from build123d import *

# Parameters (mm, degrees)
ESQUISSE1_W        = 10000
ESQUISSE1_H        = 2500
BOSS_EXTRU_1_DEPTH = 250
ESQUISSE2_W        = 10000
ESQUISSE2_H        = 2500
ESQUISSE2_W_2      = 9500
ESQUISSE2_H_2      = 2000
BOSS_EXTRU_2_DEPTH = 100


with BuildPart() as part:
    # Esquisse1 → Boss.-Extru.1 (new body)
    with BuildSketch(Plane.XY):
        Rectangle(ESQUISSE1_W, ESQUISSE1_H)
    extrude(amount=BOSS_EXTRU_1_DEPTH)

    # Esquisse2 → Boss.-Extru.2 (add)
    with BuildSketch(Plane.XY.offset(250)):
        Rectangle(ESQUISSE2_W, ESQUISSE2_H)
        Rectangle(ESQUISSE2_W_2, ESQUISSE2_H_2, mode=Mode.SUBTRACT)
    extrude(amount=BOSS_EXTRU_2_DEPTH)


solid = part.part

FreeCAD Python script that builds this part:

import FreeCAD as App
import Part
import Sketcher
from FreeCAD import Vector

doc = App.newDocument("Part")
body = doc.addObject("PartDesign::Body", "Body")

# Sketch on XY plane
sketch1 = doc.addObject("Sketcher::SketchObject", "Sketch")
body.addObject(sketch1)
sketch1.AttachmentSupport = (doc.XY_Plane, [""])
sketch1.MapMode = "FlatFace"
sketch1.addGeometry([
    Part.LineSegment(Vector(-5000, 1250, 0), Vector(-5000, -1250, 0)),
    Part.LineSegment(Vector(-5000, -1250, 0), Vector(5000, -1250, 0)),
    Part.LineSegment(Vector(5000, -1250, 0), Vector(5000, 1250, 0)),
    Part.LineSegment(Vector(5000, 1250, 0), Vector(-5000, 1250, 0)),
], False)
sketch1.addConstraint([
    Sketcher.Constraint("Coincident", 0, 2, 1, 1),
    Sketcher.Constraint("Coincident", 1, 2, 2, 1),
    Sketcher.Constraint("Coincident", 2, 2, 3, 1),
    Sketcher.Constraint("Coincident", 3, 2, 0, 1),
    Sketcher.Constraint("Vertical", 0),
    Sketcher.Constraint("Horizontal", 1),
    Sketcher.Constraint("Vertical", 2),
    Sketcher.Constraint("Horizontal", 3),
    Sketcher.Constraint("Symmetric", 0, 2, 2, 2, -1, 1),
    Sketcher.Constraint("DistanceX", 1, 1, 1, 2, 10000.0),
    Sketcher.Constraint("DistanceY", 0, 2, 0, 1, 2500.0),
])
pad1 = doc.addObject("PartDesign::Pad", "Pad")
body.addObject(pad1)
pad1.Profile = sketch1
pad1.Length = 250

# Sketch on XY plane
sketch2 = doc.addObject("Sketcher::SketchObject", "Sketch001")
body.addObject(sketch2)
sketch2.AttachmentSupport = (doc.XY_Plane, [""])
sketch2.MapMode = "FlatFace"
sketch2.AttachmentOffset = App.Placement(Vector(0, 0, 250), App.Rotation())
sketch2.addGeometry([
    Part.LineSegment(Vector(-5000, 1250, 0), Vector(-5000, -1250, 0)),  # 0
    Part.LineSegment(Vector(-5000, -1250, 0), Vector(5000, -1250, 0)),  # 1
    Part.LineSegment(Vector(5000, -1250, 0), Vector(5000, 1250, 0)),  # 2
    Part.LineSegment(Vector(5000, 1250, 0), Vector(-5000, 1250, 0)),  # 3
    Part.LineSegment(Vector(4750, -1000, 0), Vector(-4750, -1000, 0)),  # 4
    Part.LineSegment(Vector(-4750, -1000, 0), Vector(-4750, 1000, 0)),  # 5
    Part.LineSegment(Vector(-4750, 1000, 0), Vector(4750, 1000, 0)),  # 6
    Part.LineSegment(Vector(4750, 1000, 0), Vector(4750, -1000, 0)),  # 7
], False)
sketch2.addConstraint([
    Sketcher.Constraint("Coincident", 0, 2, 1, 1),
    Sketcher.Constraint("Coincident", 1, 2, 2, 1),
    Sketcher.Constraint("Coincident", 2, 2, 3, 1),
    Sketcher.Constraint("Coincident", 3, 2, 0, 1),
    Sketcher.Constraint("Coincident", 4, 2, 5, 1),
    Sketcher.Constraint("Coincident", 5, 2, 6, 1),
    Sketcher.Constraint("Coincident", 6, 2, 7, 1),
    Sketcher.Constraint("Coincident", 7, 2, 4, 1),
    Sketcher.Constraint("Vertical", 0),
    Sketcher.Constraint("Horizontal", 1),
    Sketcher.Constraint("Vertical", 2),
    Sketcher.Constraint("Horizontal", 3),
    Sketcher.Constraint("Horizontal", 4),
    Sketcher.Constraint("Vertical", 5),
    Sketcher.Constraint("Horizontal", 6),
    Sketcher.Constraint("Vertical", 7),
    Sketcher.Constraint("Symmetric", 0, 2, 2, 2, -1, 1),
    Sketcher.Constraint("Symmetric", 4, 2, 6, 2, -1, 1),
    Sketcher.Constraint("DistanceX", 1, 1, 1, 2, 10000.0),
    Sketcher.Constraint("DistanceX", 4, 2, 4, 1, 9500.0),
    Sketcher.Constraint("DistanceY", 0, 2, 0, 1, 2500.0),
    Sketcher.Constraint("DistanceY", 5, 1, 5, 2, 2000.0),
])
pad2 = doc.addObject("PartDesign::Pad", "Pad001")
body.addObject(pad2)
pad2.Profile = sketch2
pad2.Length = 100

doc.recompute()
